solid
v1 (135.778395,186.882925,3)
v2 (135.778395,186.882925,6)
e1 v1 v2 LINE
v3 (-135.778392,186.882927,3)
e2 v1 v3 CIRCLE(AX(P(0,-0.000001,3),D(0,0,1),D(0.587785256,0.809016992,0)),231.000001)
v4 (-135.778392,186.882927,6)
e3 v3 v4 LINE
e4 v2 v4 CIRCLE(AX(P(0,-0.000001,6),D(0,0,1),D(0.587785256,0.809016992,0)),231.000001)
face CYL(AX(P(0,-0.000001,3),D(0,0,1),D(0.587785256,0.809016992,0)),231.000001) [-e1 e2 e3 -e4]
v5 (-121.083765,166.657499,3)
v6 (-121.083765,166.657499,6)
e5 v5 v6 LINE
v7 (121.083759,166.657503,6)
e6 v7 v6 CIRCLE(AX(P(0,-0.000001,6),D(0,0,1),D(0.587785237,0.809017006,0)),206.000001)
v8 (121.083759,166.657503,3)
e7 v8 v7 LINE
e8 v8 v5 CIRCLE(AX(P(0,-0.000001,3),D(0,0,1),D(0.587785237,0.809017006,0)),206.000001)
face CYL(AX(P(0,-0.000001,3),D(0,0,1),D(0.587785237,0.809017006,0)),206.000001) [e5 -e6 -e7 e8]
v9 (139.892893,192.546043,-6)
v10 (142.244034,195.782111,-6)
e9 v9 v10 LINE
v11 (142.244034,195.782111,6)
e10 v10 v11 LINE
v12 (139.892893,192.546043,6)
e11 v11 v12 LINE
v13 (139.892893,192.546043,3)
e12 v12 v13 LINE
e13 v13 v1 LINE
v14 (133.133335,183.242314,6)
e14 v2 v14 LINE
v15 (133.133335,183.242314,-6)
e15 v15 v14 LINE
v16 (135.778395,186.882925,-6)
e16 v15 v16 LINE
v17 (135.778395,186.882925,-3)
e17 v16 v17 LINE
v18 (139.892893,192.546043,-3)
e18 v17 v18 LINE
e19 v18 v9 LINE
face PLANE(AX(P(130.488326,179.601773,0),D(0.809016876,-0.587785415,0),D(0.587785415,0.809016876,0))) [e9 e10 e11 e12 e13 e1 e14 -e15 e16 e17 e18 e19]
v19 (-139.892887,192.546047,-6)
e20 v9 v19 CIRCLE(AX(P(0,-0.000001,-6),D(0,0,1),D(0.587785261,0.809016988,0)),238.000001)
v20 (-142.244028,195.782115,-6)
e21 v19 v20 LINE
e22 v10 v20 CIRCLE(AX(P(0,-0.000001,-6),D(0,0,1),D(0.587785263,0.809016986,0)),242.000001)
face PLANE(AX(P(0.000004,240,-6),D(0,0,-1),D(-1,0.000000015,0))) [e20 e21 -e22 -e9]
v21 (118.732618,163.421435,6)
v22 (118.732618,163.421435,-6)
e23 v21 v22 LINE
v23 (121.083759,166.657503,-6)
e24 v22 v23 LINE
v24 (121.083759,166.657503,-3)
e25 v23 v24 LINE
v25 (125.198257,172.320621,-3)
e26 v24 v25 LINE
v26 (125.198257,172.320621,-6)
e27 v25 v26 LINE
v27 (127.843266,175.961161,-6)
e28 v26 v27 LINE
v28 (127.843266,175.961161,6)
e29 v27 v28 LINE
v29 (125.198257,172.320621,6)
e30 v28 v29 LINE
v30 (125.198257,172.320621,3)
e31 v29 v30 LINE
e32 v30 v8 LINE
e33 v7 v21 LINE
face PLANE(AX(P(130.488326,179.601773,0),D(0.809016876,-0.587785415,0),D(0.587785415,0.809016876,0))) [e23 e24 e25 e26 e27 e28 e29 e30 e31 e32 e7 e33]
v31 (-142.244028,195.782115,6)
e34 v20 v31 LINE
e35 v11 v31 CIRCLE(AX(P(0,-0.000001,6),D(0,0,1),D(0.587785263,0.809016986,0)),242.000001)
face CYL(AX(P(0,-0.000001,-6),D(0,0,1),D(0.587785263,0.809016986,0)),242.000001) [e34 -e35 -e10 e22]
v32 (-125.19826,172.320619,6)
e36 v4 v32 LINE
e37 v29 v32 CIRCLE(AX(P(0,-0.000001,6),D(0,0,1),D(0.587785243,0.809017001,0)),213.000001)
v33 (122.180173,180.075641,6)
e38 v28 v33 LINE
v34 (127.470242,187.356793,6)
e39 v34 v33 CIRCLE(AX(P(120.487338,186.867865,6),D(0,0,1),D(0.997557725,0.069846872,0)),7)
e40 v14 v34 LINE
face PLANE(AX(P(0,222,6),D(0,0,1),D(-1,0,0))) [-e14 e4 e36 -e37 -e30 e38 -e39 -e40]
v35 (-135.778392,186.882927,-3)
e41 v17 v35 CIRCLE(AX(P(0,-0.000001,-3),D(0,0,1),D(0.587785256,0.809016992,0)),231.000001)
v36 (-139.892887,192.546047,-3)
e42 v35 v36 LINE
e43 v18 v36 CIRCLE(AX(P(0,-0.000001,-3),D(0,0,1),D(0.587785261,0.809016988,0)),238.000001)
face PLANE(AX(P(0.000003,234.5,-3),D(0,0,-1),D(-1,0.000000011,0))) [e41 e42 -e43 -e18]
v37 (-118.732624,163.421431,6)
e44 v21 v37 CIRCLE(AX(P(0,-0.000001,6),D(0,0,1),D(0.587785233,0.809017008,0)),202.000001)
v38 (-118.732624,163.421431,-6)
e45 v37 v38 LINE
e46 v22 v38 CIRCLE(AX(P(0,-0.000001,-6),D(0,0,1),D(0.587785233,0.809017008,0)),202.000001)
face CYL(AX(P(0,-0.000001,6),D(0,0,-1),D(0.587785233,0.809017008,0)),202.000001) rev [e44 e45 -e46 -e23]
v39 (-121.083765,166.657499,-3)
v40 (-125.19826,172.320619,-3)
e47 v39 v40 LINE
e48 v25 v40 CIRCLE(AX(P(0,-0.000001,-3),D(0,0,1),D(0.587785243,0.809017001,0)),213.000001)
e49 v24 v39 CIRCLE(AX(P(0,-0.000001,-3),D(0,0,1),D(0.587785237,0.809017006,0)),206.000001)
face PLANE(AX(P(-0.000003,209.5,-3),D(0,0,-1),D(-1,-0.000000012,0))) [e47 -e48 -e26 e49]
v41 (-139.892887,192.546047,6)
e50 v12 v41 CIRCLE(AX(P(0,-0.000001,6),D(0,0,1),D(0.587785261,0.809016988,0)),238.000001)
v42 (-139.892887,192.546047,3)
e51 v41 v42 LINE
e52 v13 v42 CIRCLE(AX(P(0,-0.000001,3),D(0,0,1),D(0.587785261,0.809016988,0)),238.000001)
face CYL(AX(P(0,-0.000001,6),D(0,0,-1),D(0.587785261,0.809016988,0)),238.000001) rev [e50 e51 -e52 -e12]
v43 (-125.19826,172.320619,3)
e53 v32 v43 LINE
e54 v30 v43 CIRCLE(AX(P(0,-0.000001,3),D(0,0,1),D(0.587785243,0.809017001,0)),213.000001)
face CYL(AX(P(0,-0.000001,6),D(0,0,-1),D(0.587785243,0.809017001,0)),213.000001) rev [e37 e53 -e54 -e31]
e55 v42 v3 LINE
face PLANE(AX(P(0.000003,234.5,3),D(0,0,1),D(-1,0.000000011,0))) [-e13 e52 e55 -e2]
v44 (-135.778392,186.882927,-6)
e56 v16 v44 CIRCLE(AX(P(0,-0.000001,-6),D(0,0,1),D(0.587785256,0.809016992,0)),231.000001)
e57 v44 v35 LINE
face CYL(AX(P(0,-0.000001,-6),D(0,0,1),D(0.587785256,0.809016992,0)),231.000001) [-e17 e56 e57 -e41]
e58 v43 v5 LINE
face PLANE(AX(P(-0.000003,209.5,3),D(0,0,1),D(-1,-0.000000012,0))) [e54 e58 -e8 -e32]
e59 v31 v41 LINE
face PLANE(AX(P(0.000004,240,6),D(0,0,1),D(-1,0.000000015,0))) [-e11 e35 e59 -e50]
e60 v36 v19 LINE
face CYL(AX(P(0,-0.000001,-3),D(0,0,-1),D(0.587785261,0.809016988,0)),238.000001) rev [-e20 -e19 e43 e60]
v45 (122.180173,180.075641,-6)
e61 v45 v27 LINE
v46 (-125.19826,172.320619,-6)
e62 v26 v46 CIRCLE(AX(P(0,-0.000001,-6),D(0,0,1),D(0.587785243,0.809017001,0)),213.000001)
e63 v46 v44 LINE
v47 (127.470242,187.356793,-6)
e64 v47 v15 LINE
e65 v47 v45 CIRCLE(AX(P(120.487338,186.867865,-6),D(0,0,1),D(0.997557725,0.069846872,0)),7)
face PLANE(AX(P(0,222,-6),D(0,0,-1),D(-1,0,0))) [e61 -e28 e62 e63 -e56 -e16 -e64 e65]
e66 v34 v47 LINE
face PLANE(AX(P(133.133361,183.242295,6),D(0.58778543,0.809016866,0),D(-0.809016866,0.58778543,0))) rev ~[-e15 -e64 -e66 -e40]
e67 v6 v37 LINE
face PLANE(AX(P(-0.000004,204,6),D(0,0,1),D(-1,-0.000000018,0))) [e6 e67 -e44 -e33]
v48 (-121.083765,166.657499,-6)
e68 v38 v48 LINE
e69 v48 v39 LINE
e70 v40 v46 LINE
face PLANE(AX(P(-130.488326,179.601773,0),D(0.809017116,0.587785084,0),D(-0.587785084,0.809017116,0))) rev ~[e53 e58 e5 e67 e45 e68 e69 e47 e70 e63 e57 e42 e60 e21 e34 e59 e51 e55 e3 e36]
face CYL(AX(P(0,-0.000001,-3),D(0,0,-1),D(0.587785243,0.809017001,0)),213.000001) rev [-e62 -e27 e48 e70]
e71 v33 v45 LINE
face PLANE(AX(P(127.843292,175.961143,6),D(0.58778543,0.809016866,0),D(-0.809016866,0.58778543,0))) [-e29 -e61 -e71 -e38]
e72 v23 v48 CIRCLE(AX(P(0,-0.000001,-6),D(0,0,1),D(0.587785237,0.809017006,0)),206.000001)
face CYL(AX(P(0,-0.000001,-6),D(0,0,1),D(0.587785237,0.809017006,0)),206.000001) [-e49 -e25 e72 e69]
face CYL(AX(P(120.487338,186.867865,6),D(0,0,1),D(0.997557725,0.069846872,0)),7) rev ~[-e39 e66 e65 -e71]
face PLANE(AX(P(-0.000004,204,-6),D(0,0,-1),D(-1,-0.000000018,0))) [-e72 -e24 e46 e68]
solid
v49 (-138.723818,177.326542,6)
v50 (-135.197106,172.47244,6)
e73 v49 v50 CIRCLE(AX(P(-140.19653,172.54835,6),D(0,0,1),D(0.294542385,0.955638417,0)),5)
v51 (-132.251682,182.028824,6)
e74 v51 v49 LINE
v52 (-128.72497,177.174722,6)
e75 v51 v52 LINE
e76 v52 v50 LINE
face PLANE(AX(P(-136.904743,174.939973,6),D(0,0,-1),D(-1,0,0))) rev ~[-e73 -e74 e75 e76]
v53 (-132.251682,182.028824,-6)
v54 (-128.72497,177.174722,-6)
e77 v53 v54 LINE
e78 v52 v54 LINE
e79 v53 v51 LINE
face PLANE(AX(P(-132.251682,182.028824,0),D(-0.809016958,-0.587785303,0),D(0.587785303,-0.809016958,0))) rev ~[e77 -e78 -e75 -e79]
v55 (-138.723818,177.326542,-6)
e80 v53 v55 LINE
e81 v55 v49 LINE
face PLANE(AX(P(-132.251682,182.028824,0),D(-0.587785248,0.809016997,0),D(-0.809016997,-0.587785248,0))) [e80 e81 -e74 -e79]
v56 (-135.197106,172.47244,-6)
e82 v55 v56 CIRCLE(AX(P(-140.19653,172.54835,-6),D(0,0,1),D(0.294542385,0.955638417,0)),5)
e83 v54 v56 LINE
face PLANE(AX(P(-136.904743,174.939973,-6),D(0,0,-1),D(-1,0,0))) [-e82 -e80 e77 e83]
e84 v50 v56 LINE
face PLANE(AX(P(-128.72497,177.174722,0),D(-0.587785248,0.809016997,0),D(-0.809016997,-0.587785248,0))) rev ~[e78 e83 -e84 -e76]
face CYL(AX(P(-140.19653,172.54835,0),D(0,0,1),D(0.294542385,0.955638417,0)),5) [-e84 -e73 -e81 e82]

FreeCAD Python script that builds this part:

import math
import FreeCAD as App
import Part
import Sketcher

V = App.Vector
Q = App.Units.Quantity


def add_polygon(sketch, points):
    """Adds a closed chain of lines whose ends are joined by coincident constraints."""
    first, n = sketch.GeometryCount, len(points)
    for a, b in zip(points, points[1:] + points[:1]):
        sketch.addGeometry(Part.LineSegment(App.Vector(*a, 0), App.Vector(*b, 0)), False)
    for i in range(n):
        sketch.addConstraint(Sketcher.Constraint("Coincident", first + i, 2, first + (i + 1) % n, 1))

doc = App.newDocument("Part")
body = doc.addObject("PartDesign::Body", "Body")

# Sketch on an angled plane
sketch1 = doc.addObject("Sketcher::SketchObject", "Sketch")
body.addObject(sketch1)
sketch1.Placement = App.Placement(V(-130.488326, 179.601773, 0), App.Rotation(V(-0.587785084, 0.809017116, 0), V(0, 0, 0.999999999), V(0.809017116, 0.587785084, 0), "ZXY"))
add_polygon(sketch1, [(-20, 6), (-20, -6), (-16, -6), (-16, -3), (-9, -3), (-9, -6), (9, -6), (9, -3), (16, -3), (16, -6), (20, -6), (20, 6), (16, 6), (16, 3), (9, 3), (9, 6), (-9, 6), (-9, 3), (-16, 3), (-16, 6)])  # lines 0-19
sketch1.addConstraint([
    Sketcher.Constraint("Vertical", 0),
    Sketcher.Constraint("Horizontal", 1),
    Sketcher.Constraint("Vertical", 2),
    Sketcher.Constraint("Horizontal", 3),
    Sketcher.Constraint("Vertical", 4),
    Sketcher.Constraint("Horizontal", 5),
    Sketcher.Constraint("Vertical", 6),
    Sketcher.Constraint("Horizontal", 7),
    Sketcher.Constraint("Vertical", 8),
    Sketcher.Constraint("Horizontal", 9),
    Sketcher.Constraint("Vertical", 10),
    Sketcher.Constraint("Horizontal", 11),
    Sketcher.Constraint("Vertical", 12),
    Sketcher.Constraint("Horizontal", 13),
    Sketcher.Constraint("Vertical", 14),
    Sketcher.Constraint("Horizontal", 15),
    Sketcher.Constraint("Vertical", 16),
    Sketcher.Constraint("Horizontal", 17),
    Sketcher.Constraint("Vertical", 18),
    Sketcher.Constraint("Horizontal", 19),
    Sketcher.Constraint("Symmetric", 0, 2, 10, 2, -1, 1),
    Sketcher.Constraint("Symmetric", 2, 2, 12, 2, -1, 1),
    Sketcher.Constraint("Symmetric", 4, 2, 14, 2, -1, 1),
    Sketcher.Constraint("Symmetric", 6, 2, 16, 2, -1, 1),
    Sketcher.Constraint("Symmetric", 8, 2, 18, 2, -1, 1),
    Sketcher.Constraint("Symmetric", 3, 2, 6, 2, -2),
    Sketcher.Constraint("Symmetric", 1, 2, 8, 2, -2),
    Sketcher.Constraint("Horizontal", 1, 2, 4, 2),
    Sketcher.Constraint("DistanceX", 1, 1, 1, 2, 4.0),
    Sketcher.Constraint("DistanceX", 3, 1, 3, 2, 7.0),
    Sketcher.Constraint("DistanceX", 5, 1, 5, 2, 18.0),
    Sketcher.Constraint("DistanceY", 0, 2, 0, 1, 12.0),
    Sketcher.Constraint("DistanceY", 2, 1, 2, 2, 3.0),
])

# Sketch on XY plane
sketch2 = doc.addObject("Sketcher::SketchObject", "Sketch001")
body.addObject(sketch2)
sketch2.AttachmentSupport = (doc.XY_Plane, [""])
sketch2.MapMode = "FlatFace"
sketch2.addGeometry(Part.ArcOfCircle(Part.Circle(V(0, 0, 0), V(0, 0, 1), 222), math.radians(54), math.radians(126)), False)
sketch2.addConstraint([
    Sketcher.Constraint("Coincident", 0, 3, -1, 1),
    Sketcher.Constraint("Radius", 0, 222.000001),
    Sketcher.Constraint("DistanceX", 0, 2, 0, 1, 260.976652),
    Sketcher.Constraint("DistanceX", -1, 1, 0, 1, 130.488326),
])
doc.recompute()

additivepipe = doc.addObject("PartDesign::AdditivePipe", "AdditivePipe")
body.addObject(additivepipe)
additivepipe.Profile = sketch1
additivepipe.Spine = (sketch2, ["Edge1"])

# Sketch on XY plane
sketch3 = doc.addObject("Sketcher::SketchObject", "Sketch002")
body.addObject(sketch3)
sketch3.AttachmentSupport = (doc.XY_Plane, [""])
sketch3.MapMode = "FlatFace"
sketch3.AttachmentOffset = App.Placement(V(0, 0, 6), App.Rotation())
sketch3.addGeometry([
    Part.LineSegment(V(133, 183, 0), V(127, 187, 0)),
    Part.ArcOfCircle(Part.Circle(V(120, 187, 0), V(0, 0, 1), 7), math.radians(4), math.radians(284)),
    Part.LineSegment(V(122, 180, 0), V(128, 176, 0)),
    Part.LineSegment(V(128, 176, 0), V(133, 183, 0)),
], False)
sketch3.addConstraint([
    Sketcher.Constraint("Coincident", 0, 2, 1, 1),
    Sketcher.Constraint("Coincident", 1, 2, 2, 1),
    Sketcher.Constraint("Coincident", 2, 2, 3, 1),
    Sketcher.Constraint("Coincident", 3, 2, 0, 1),
    Sketcher.Constraint("Parallel", 0, 2),
    Sketcher.Constraint("Perpendicular", 2, 3),
    Sketcher.Constraint("Equal", 0, 2),
    Sketcher.Constraint("Radius", 1, 7.0),
    Sketcher.Constraint("Angle", 0, Q("143.999987 deg")),
    Sketcher.Constraint("Distance", 0, 7.0),
    Sketcher.Constraint("Distance", 3, 9.0),
    Sketcher.Constraint("DistanceX", -1, 1, 1, 3, 120.487338),
    Sketcher.Constraint("DistanceY", -1, 1, 1, 2, 180.075641),
])
pocket1 = doc.addObject("PartDesign::Pocket", "Pocket")
body.addObject(pocket1)
pocket1.Profile = sketch3
pocket1.Type = "ThroughAll"
body2 = doc.addObject("PartDesign::Body", "Body001")

# Sketch on XY plane
sketch4 = doc.addObject("Sketcher::SketchObject", "Sketch003")
body2.addObject(sketch4)
sketch4.AttachmentSupport = (doc.getObject("XY_Plane001"), [""])
sketch4.MapMode = "FlatFace"
sketch4.addGeometry([
    Part.LineSegment(V(-129, 177, 0), V(-132, 182, 0)),
    Part.LineSegment(V(-132, 182, 0), V(-139, 177, 0)),
    Part.ArcOfCircle(Part.Circle(V(-140, 173, 0), V(0, 0, 1), 5), math.radians(73), math.radians(359)),
    Part.LineSegment(V(-135, 172, 0), V(-129, 177, 0)),
], False)
sketch4.addConstraint([
    Sketcher.Constraint("Coincident", 0, 2, 1, 1),
    Sketcher.Constraint("Coincident", 1, 2, 2, 1),
    Sketcher.Constraint("Coincident", 2, 2, 3, 1),
    Sketcher.Constraint("Coincident", 3, 2, 0, 1),
    Sketcher.Constraint("Perpendicular", 0, 1),
    Sketcher.Constraint("Parallel", 1, 3),
    Sketcher.Constraint("Equal", 1, 3),
    Sketcher.Constraint("Radius", 2, 5.0),
    Sketcher.Constraint("Angle", 0, Q("126.000004 deg")),
    Sketcher.Constraint("Distance", 0, 6.0),
    Sketcher.Constraint("Distance", 1, 8.0),
    Sketcher.Constraint("DistanceX", 2, 3, -1, 1, 140.19653),
    Sketcher.Constraint("DistanceY", -1, 1, 2, 3, 172.54835),
])
pad1 = doc.addObject("PartDesign::Pad", "Pad")
body2.addObject(pad1)
pad1.Profile = sketch4
pad1.Length = 12
pad1.Midplane = True

doc.recompute()
